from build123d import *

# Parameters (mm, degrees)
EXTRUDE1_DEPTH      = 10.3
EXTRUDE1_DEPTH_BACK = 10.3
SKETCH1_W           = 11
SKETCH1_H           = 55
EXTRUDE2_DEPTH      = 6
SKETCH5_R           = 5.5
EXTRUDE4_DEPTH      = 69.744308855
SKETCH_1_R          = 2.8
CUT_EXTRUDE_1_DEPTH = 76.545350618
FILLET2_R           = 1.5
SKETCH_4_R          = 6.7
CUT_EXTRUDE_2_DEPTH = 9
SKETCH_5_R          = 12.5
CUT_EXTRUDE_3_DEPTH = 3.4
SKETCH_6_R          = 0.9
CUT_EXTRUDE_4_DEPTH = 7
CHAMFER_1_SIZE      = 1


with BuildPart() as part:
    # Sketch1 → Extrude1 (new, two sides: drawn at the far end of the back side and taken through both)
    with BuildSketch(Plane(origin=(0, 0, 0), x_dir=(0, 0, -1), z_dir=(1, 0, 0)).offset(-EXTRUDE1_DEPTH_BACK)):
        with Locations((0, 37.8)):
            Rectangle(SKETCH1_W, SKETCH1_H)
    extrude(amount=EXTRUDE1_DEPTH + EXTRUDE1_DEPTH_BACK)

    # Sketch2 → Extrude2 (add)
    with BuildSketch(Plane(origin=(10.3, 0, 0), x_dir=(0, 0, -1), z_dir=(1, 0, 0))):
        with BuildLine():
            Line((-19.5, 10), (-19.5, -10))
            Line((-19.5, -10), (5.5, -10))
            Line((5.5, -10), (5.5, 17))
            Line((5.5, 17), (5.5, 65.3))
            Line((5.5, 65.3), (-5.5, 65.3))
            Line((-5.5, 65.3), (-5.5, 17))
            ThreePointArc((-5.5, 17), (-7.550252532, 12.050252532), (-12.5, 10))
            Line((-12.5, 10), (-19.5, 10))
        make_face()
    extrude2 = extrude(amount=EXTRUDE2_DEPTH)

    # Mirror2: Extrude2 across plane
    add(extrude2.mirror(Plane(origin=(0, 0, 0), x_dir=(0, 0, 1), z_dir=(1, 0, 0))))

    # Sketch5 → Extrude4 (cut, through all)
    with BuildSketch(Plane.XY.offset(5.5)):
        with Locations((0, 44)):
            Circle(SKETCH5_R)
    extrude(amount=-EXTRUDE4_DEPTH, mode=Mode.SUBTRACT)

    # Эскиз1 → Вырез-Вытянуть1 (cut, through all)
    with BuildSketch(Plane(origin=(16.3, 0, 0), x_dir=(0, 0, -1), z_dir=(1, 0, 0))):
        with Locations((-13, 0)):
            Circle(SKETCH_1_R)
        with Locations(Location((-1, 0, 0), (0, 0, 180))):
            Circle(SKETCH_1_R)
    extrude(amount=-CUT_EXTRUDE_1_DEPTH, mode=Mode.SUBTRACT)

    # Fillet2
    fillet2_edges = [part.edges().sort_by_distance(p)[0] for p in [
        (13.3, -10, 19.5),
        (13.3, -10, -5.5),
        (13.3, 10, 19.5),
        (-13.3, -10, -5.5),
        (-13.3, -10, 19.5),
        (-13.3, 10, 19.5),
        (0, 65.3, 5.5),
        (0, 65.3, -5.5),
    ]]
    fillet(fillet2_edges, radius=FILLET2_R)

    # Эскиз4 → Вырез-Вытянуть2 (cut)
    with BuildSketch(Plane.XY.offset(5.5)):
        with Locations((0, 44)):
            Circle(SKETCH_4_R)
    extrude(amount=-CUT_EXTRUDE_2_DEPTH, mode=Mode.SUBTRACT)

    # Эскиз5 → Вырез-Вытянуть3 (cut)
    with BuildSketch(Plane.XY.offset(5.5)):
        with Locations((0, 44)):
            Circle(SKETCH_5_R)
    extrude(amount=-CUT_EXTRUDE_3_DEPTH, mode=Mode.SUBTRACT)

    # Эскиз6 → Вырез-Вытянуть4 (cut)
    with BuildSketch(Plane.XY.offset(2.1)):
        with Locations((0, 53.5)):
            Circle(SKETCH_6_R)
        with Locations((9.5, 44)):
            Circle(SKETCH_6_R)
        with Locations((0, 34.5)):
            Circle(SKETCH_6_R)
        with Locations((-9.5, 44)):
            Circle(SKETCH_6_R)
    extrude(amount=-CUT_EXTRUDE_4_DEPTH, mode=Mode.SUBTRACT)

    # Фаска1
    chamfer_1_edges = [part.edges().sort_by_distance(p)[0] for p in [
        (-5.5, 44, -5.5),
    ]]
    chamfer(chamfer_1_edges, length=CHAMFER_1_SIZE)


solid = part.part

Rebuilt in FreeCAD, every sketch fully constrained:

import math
import FreeCAD as App
import Part
import Sketcher
Q = App.Units.Quantity


def edges_at(feature, points):
    """Names of the edges that pass closest to the given points."""
    edges = feature.Shape.Edges
    near = lambda p: min(range(len(edges)), key=lambda i: edges[i].distToShape(Part.Vertex(*p))[0])
    return sorted({f"Edge{near(p) + 1}" for p in points})


def add_polygon(sketch, points):
    """Adds a closed chain of lines whose ends are joined by coincident constraints."""
    first, n = sketch.GeometryCount, len(points)
    for a, b in zip(points, points[1:] + points[:1]):
        sketch.addGeometry(Part.LineSegment(App.Vector(*a, 0), App.Vector(*b, 0)), False)
    for i in range(n):
        sketch.addConstraint(Sketcher.Constraint("Coincident", first + i, 2, first + (i + 1) % n, 1))

doc = App.newDocument("Part")
body = doc.addObject("PartDesign::Body", "Body")

# Sketch on YZ plane
sketch1 = body.newObject("Sketcher::SketchObject", "Sketch")
sketch1.AttachmentSupport = (doc.getObject("YZ_Plane"), [""])
sketch1.MapMode = "FlatFace"
add_polygon(sketch1, [(65, 6), (10, 6), (10, -6), (65, -6)])  # lines 0-3
sketch1.addConstraint([
    Sketcher.Constraint("Horizontal", 0),
    Sketcher.Constraint("Vertical", 1),
    Sketcher.Constraint("Horizontal", 2),
    Sketcher.Constraint("Vertical", 3),
    Sketcher.Constraint("DistanceX", 0, 2, 0, 1, Q("55 mm")),
    Sketcher.Constraint("DistanceY", 1, 2, 1, 1, Q("11 mm")),
    Sketcher.Constraint("DistanceX", -1, 1, 0, 2, Q("10.3 mm")),
    Sketcher.Constraint("DistanceY", -1, 1, 0, 2, Q("5.5 mm")),
])
pad1 = body.newObject("PartDesign::Pad", "Pad")
pad1.Profile = sketch1
pad1.Type = "TwoLengths"
pad1.Length = 10.3
pad1.Length2 = 10.3

# Sketch on YZ plane
sketch2 = body.newObject("Sketcher::SketchObject", "Sketch001")
sketch2.AttachmentSupport = (doc.getObject("YZ_Plane"), [""])
sketch2.MapMode = "FlatFace"
sketch2.AttachmentOffset = App.Placement(App.Vector(0, 0, 10.3), App.Rotation())
sketch2.addGeometry([
    Part.LineSegment(App.Vector(10, 20, 0), App.Vector(-10, 20, 0)),  # 0
    Part.LineSegment(App.Vector(-10, 20, 0), App.Vector(-10, -6, 0)),  # 1
    Part.LineSegment(App.Vector(-10, -6, 0), App.Vector(65, -6, 0)),  # 2
    Part.LineSegment(App.Vector(65, -6, 0), App.Vector(65, 6, 0)),  # 3
    Part.LineSegment(App.Vector(65, 6, 0), App.Vector(17, 6, 0)),  # 4
    Part.ArcOfCircle(Part.Circle(App.Vector(17, 13, 0), App.Vector(0, 0, 1), 7), math.radians(-180), math.radians(-90)),  # 5
    Part.LineSegment(App.Vector(10, 12, 0), App.Vector(10, 20, 0)),  # 6
], False)
sketch2.addConstraint([
    Sketcher.Constraint("Coincident", 0, 2, 1, 1),
    Sketcher.Constraint("Coincident", 1, 2, 2, 1),
    Sketcher.Constraint("Coincident", 2, 2, 3, 1),
    Sketcher.Constraint("Coincident", 3, 2, 4, 1),
    Sketcher.Constraint("Tangent", 4, 2, 5, 2),
    Sketcher.Constraint("Tangent", 5, 1, 6, 1),
    Sketcher.Constraint("Coincident", 6, 2, 0, 1),
    Sketcher.Constraint("Horizontal", 0),
    Sketcher.Constraint("Vertical", 1),
    Sketcher.Constraint("Horizontal", 2),
    Sketcher.Constraint("Vertical", 3),
    Sketcher.Constraint("Horizontal", 4),
    Sketcher.Constraint("Vertical", 6),
    Sketcher.Constraint("Radius", 5, Q("7 mm")),
    Sketcher.Constraint("DistanceX", 0, 2, 0, 1, Q("20 mm")),
    Sketcher.Constraint("DistanceY", 1, 2, 1, 1, Q("25 mm")),
    Sketcher.Constraint("DistanceY", 3, 1, 3, 2, Q("11 mm")),
    Sketcher.Constraint("DistanceX", 2, 1, 2, 2, Q("75.3 mm")),
    Sketcher.Constraint("DistanceX", -1, 1, 5, 3, Q("17 mm")),
    Sketcher.Constraint("DistanceY", -1, 1, 5, 3, Q("12.5 mm")),
])
pad2 = body.newObject("PartDesign::Pad", "Pad001")
pad2.Profile = sketch2
pad2.Length = 6
doc.recompute()

mirrored = body.newObject("PartDesign::Mirrored", "Mirrored")
mirrored.Originals = [pad2]
mirrored.MirrorPlane = (doc.getObject("YZ_Plane"), [""])
body.Tip = mirrored

# Sketch on XY plane
sketch3 = body.newObject("Sketcher::SketchObject", "Sketch002")
sketch3.AttachmentSupport = (doc.getObject("XY_Plane"), [""])
sketch3.MapMode = "FlatFace"
sketch3.AttachmentOffset = App.Placement(App.Vector(0, 0, 5.5), App.Rotation())
sketch3.addGeometry(Part.Circle(App.Vector(0, 44, 0), App.Vector(0, 0, 1), 6), False)
sketch3.addConstraint([
    Sketcher.Constraint("PointOnObject", 0, 3, -2),
    Sketcher.Constraint("Diameter", 0, Q("11 mm")),
    Sketcher.Constraint("DistanceY", -1, 1, 0, 3, Q("44 mm")),
])
pocket1 = body.newObject("PartDesign::Pocket", "Pocket")
pocket1.Profile = sketch3
pocket1.Type = "ThroughAll"

# Sketch on YZ plane
sketch4 = body.newObject("Sketcher::SketchObject", "Sketch003")
sketch4.AttachmentSupport = (doc.getObject("YZ_Plane"), [""])
sketch4.MapMode = "FlatFace"
sketch4.AttachmentOffset = App.Placement(App.Vector(0, 0, 16.3), App.Rotation())
sketch4.addGeometry([
    Part.Circle(App.Vector(0, 13, 0), App.Vector(0, 0, 1), 2.8),
    Part.Circle(App.Vector(0, 1, 0), App.Vector(0, 0, 1), 2.8),
], False)
sketch4.addConstraint([
    Sketcher.Constraint("Equal", 0, 1),
    Sketcher.Constraint("PointOnObject", 0, 3, -2),
    Sketcher.Constraint("PointOnObject", 1, 3, -2),
    Sketcher.Constraint("Diameter", 0, Q("5.6 mm")),
    Sketcher.Constraint("DistanceY", -1, 1, 0, 3, Q("13 mm")),
    Sketcher.Constraint("DistanceY", -1, 1, 1, 3, Q("1 mm")),
])
pocket2 = body.newObject("PartDesign::Pocket", "Pocket001")
pocket2.Profile = sketch4
pocket2.Type = "ThroughAll"
doc.recompute()

fillet = body.newObject("PartDesign::Fillet", "Fillet")
fillet.Base = (pocket2, edges_at(pocket2, [
    (13.3, -10, 19.5),
    (13.3, -10, -5.5),
    (13.3, 10, 19.5),
    (-13.3, -10, -5.5),
    (-13.3, -10, 19.5),
    (-13.3, 10, 19.5),
    (0, 65.3, 5.5),
    (0, 65.3, -5.5),
]))
fillet.Radius = 1.5

# Sketch on XY plane
sketch5 = body.newObject("Sketcher::SketchObject", "Sketch004")
sketch5.AttachmentSupport = (doc.getObject("XY_Plane"), [""])
sketch5.MapMode = "FlatFace"
sketch5.AttachmentOffset = App.Placement(App.Vector(0, 0, 5.5), App.Rotation())
sketch5.addGeometry(Part.Circle(App.Vector(0, 44, 0), App.Vector(0, 0, 1), 7), False)
sketch5.addConstraint([
    Sketcher.Constraint("PointOnObject", 0, 3, -2),
    Sketcher.Constraint("Diameter", 0, Q("13.4 mm")),
    Sketcher.Constraint("DistanceY", -1, 1, 0, 3, Q("44 mm")),
])
pocket3 = body.newObject("PartDesign::Pocket", "Pocket002")
pocket3.Profile = sketch5
pocket3.Length = 9

# Sketch on XY plane
sketch6 = body.newObject("Sketcher::SketchObject", "Sketch005")
sketch6.AttachmentSupport = (doc.getObject("XY_Plane"), [""])
sketch6.MapMode = "FlatFace"
sketch6.AttachmentOffset = App.Placement(App.Vector(0, 0, 5.5), App.Rotation())
sketch6.addGeometry(Part.Circle(App.Vector(0, 44, 0), App.Vector(0, 0, 1), 12), False)
sketch6.addConstraint([
    Sketcher.Constraint("PointOnObject", 0, 3, -2),
    Sketcher.Constraint("Diameter", 0, Q("25 mm")),
    Sketcher.Constraint("DistanceY", -1, 1, 0, 3, Q("44 mm")),
])
pocket4 = body.newObject("PartDesign::Pocket", "Pocket003")
pocket4.Profile = sketch6
pocket4.Length = 3.4

# Sketch on XY plane
sketch7 = body.newObject("Sketcher::SketchObject", "Sketch006")
sketch7.AttachmentSupport = (doc.getObject("XY_Plane"), [""])
sketch7.MapMode = "FlatFace"
sketch7.AttachmentOffset = App.Placement(App.Vector(0, 0, 2.1), App.Rotation())
sketch7.addGeometry([
    Part.Circle(App.Vector(0, 53.5, 0), App.Vector(0, 0, 1), 0.9),
    Part.Circle(App.Vector(9.5, 44, 0), App.Vector(0, 0, 1), 0.9),
    Part.Circle(App.Vector(0, 34.5, 0), App.Vector(0, 0, 1), 0.9),
    Part.Circle(App.Vector(-9.5, 44, 0), App.Vector(0, 0, 1), 0.9),
], False)
sketch7.addConstraint([
    Sketcher.Constraint("Equal", 0, 1),
    Sketcher.Constraint("Equal", 1, 2),
    Sketcher.Constraint("Equal", 2, 3),
    Sketcher.Constraint("Symmetric", 1, 3, 3, 3, -2),
    Sketcher.Constraint("PointOnObject", 0, 3, -2),
    Sketcher.Constraint("PointOnObject", 2, 3, -2),
    Sketcher.Constraint("Diameter", 0, Q("1.8 mm")),
    Sketcher.Constraint("DistanceY", -1, 1, 1, 3, Q("44 mm")),
    Sketcher.Constraint("DistanceY", 2, 3, 0, 3, Q("19 mm")),
    Sketcher.Constraint("DistanceX", 3, 3, 1, 3, Q("19 mm")),
    Sketcher.Constraint("DistanceY", -1, 1, 0, 3, Q("53.5 mm")),
])
pocket5 = body.newObject("PartDesign::Pocket", "Pocket004")
pocket5.Profile = sketch7
pocket5.Length = 7
doc.recompute()

chamfer = body.newObject("PartDesign::Chamfer", "Chamfer")
chamfer.Base = (pocket5, edges_at(pocket5, [(-5.5, 44, -5.5)]))
chamfer.Size = 1

doc.recompute()
